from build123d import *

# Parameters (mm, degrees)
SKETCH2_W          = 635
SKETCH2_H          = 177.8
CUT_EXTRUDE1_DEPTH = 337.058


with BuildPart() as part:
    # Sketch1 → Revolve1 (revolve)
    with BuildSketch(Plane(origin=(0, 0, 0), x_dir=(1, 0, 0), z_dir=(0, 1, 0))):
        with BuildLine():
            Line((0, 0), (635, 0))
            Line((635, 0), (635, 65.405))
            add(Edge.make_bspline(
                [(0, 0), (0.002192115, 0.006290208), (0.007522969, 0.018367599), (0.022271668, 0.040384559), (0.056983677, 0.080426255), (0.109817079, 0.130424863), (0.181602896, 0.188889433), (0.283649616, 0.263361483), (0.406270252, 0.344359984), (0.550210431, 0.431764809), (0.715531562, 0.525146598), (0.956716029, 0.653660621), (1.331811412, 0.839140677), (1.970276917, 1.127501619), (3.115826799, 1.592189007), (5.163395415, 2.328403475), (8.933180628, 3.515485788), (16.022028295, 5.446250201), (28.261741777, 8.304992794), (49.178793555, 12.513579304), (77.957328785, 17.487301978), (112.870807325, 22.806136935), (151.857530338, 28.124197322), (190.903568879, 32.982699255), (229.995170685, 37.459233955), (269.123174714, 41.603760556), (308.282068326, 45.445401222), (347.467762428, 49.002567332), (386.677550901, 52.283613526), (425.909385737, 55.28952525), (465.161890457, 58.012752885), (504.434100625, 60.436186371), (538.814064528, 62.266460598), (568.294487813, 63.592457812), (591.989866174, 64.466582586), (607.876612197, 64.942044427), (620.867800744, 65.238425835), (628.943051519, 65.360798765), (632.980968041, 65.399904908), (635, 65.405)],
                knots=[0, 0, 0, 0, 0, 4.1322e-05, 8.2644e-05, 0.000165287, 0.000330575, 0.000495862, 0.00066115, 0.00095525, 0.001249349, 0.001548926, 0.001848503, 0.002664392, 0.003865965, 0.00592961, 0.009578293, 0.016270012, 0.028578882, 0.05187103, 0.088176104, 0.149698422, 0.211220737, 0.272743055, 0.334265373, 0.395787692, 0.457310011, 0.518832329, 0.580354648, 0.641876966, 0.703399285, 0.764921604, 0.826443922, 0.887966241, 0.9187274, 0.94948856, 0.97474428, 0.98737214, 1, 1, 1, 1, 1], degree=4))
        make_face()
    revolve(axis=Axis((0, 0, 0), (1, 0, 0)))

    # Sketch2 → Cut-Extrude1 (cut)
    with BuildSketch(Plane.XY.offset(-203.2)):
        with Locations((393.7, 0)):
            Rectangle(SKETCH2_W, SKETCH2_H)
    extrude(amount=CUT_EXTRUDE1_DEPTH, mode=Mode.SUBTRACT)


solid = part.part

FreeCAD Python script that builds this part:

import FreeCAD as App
import Part
import Sketcher
from FreeCAD import Vector
Q = App.Units.Quantity

doc = App.newDocument("Part")
body = doc.addObject("PartDesign::Body", "Body")

sketch1 = body.newObject("Sketcher::SketchObject", "Sketch")
sketch1.AttachmentSupport = (doc.getObject("XZ_Plane"), [""])
sketch1.MapMode = "FlatFace"
sketch1.addGeometry(Part.LineSegment(Vector(0, 0, 0), Vector(635, 0, 0)), False)
sketch1.addGeometry(Part.LineSegment(Vector(635, 0, 0), Vector(635, -65.405, 0)), False)
sketch1.addGeometry(Part.BSplineCurve([Vector(0, 0, 0), Vector(0.002192, -0.00629, 0), Vector(0.007523, -0.018368, 0), Vector(0.022272, -0.040385, 0), Vector(0.056984, -0.080426, 0), Vector(0.109817, -0.130425, 0), Vector(0.181603, -0.188889, 0), Vector(0.28365, -0.263361, 0), Vector(0.40627, -0.34436, 0), Vector(0.55021, -0.431765, 0), Vector(0.715532, -0.525147, 0), Vector(0.956716, -0.653661, 0), Vector(1.331811, -0.839141, 0), Vector(1.970277, -1.127502, 0), Vector(3.115827, -1.592189, 0), Vector(5.163395, -2.328403, 0), Vector(8.933181, -3.515486, 0), Vector(16.022028, -5.44625, 0), Vector(28.261742, -8.304993, 0), Vector(49.178794, -12.513579, 0), Vector(77.957329, -17.487302, 0), Vector(112.870807, -22.806137, 0), Vector(151.85753, -28.124197, 0), Vector(190.903569, -32.982699, 0), Vector(229.995171, -37.459234, 0), Vector(269.123175, -41.603761, 0), Vector(308.282068, -45.445401, 0), Vector(347.467762, -49.002567, 0), Vector(386.677551, -52.283614, 0), Vector(425.909386, -55.289525, 0), Vector(465.16189, -58.012753, 0), Vector(504.434101, -60.436186, 0), Vector(538.814065, -62.266461, 0), Vector(568.294488, -63.592458, 0), Vector(591.989866, -64.466583, 0), Vector(607.876612, -64.942044, 0), Vector(620.867801, -65.238426, 0), Vector(628.943052, -65.360799, 0), Vector(632.980968, -65.399905, 0), Vector(635, -65.405, 0)], [5, 1, 1, 1, 1, 1, 1, 1, 1, 1, 1, 1, 1, 1, 1, 1, 1, 1, 1, 1, 1, 1, 1, 1, 1, 1, 1, 1, 1, 1, 1, 1, 1, 1, 1, 1, 5], [0, 0.000041322, 0.000082644, 0.000165287, 0.000330575, 0.000495862, 0.00066115, 0.00095525, 0.001249349, 0.001548926, 0.001848503, 0.002664392, 0.003865965, 0.00592961, 0.009578293, 0.016270012, 0.028578882, 0.05187103, 0.088176104, 0.149698422, 0.211220737, 0.272743055, 0.334265373, 0.395787692, 0.457310011, 0.518832329, 0.580354648, 0.641876966, 0.703399285, 0.764921604, 0.826443922, 0.887966241, 0.9187274, 0.94948856, 0.97474428, 0.98737214, 1], False, 4, [1, 1, 1, 1, 1, 1, 1, 1, 1, 1, 1, 1, 1, 1, 1, 1, 1, 1, 1, 1, 1, 1, 1, 1, 1, 1, 1, 1, 1, 1, 1, 1, 1, 1, 1, 1, 1, 1, 1, 1], False), False)
sketch1.addConstraint(Sketcher.Constraint("Block", 2))
sketch1.addConstraint(Sketcher.Constraint("Coincident", 0, 2, 1, 1))
sketch1.addConstraint(Sketcher.Constraint("Coincident", 1, 2, 2, 2))
sketch1.addConstraint(Sketcher.Constraint("Coincident", 2, 1, 0, 1))
sketch1.addConstraint(Sketcher.Constraint("Horizontal", 0))
sketch1.addConstraint(Sketcher.Constraint("Vertical", 1))
revolution = body.newObject("PartDesign::Revolution", "Revolution")
revolution.Profile = sketch1
revolution.ReferenceAxis = (sketch1, ["H_Axis"])
revolution.Angle = 360

sketch2 = body.newObject("Sketcher::SketchObject", "Sketch001")
sketch2.AttachmentSupport = (doc.getObject("XY_Plane"), [""])
sketch2.MapMode = "FlatFace"
sketch2.AttachmentOffset = App.Placement(Vector(0, 0, -8 * 25.4), App.Rotation())
sketch2.addGeometry(Part.LineSegment(Vector(76.2, 88.9, 0), Vector(76.2, -88.9, 0)), False)
sketch2.addGeometry(Part.LineSegment(Vector(76.2, -88.9, 0), Vector(711.2, -88.9, 0)), False)
sketch2.addGeometry(Part.LineSegment(Vector(711.2, -88.9, 0), Vector(711.2, 88.9, 0)), False)
sketch2.addGeometry(Part.LineSegment(Vector(711.2, 88.9, 0), Vector(76.2, 88.9, 0)), False)
sketch2.addConstraint(Sketcher.Constraint("Coincident", 0, 2, 1, 1))
sketch2.addConstraint(Sketcher.Constraint("Coincident", 1, 2, 2, 1))
sketch2.addConstraint(Sketcher.Constraint("Coincident", 2, 2, 3, 1))
sketch2.addConstraint(Sketcher.Constraint("Coincident", 3, 2, 0, 1))
sketch2.addConstraint(Sketcher.Constraint("Vertical", 0))
sketch2.addConstraint(Sketcher.Constraint("Horizontal", 1))
sketch2.addConstraint(Sketcher.Constraint("Vertical", 2))
sketch2.addConstraint(Sketcher.Constraint("Horizontal", 3))
sketch2.addConstraint(Sketcher.Constraint("DistanceX", 1, 1, 1, 2, Q("25 in")))
sketch2.addConstraint(Sketcher.Constraint("DistanceY", 0, 2, 0, 1, Q("7 in")))
sketch2.addConstraint(Sketcher.Constraint("DistanceX", -1, 1, 0, 2, Q("3 in")))
sketch2.addConstraint(Sketcher.Constraint("DistanceY", 0, 2, -1, 1, Q("3.5 in")))
pocket1 = body.newObject("PartDesign::Pocket", "Pocket")
pocket1.Profile = sketch2
pocket1.Length = Q("13.27 in")
pocket1.Reversed = True

doc.recompute()
